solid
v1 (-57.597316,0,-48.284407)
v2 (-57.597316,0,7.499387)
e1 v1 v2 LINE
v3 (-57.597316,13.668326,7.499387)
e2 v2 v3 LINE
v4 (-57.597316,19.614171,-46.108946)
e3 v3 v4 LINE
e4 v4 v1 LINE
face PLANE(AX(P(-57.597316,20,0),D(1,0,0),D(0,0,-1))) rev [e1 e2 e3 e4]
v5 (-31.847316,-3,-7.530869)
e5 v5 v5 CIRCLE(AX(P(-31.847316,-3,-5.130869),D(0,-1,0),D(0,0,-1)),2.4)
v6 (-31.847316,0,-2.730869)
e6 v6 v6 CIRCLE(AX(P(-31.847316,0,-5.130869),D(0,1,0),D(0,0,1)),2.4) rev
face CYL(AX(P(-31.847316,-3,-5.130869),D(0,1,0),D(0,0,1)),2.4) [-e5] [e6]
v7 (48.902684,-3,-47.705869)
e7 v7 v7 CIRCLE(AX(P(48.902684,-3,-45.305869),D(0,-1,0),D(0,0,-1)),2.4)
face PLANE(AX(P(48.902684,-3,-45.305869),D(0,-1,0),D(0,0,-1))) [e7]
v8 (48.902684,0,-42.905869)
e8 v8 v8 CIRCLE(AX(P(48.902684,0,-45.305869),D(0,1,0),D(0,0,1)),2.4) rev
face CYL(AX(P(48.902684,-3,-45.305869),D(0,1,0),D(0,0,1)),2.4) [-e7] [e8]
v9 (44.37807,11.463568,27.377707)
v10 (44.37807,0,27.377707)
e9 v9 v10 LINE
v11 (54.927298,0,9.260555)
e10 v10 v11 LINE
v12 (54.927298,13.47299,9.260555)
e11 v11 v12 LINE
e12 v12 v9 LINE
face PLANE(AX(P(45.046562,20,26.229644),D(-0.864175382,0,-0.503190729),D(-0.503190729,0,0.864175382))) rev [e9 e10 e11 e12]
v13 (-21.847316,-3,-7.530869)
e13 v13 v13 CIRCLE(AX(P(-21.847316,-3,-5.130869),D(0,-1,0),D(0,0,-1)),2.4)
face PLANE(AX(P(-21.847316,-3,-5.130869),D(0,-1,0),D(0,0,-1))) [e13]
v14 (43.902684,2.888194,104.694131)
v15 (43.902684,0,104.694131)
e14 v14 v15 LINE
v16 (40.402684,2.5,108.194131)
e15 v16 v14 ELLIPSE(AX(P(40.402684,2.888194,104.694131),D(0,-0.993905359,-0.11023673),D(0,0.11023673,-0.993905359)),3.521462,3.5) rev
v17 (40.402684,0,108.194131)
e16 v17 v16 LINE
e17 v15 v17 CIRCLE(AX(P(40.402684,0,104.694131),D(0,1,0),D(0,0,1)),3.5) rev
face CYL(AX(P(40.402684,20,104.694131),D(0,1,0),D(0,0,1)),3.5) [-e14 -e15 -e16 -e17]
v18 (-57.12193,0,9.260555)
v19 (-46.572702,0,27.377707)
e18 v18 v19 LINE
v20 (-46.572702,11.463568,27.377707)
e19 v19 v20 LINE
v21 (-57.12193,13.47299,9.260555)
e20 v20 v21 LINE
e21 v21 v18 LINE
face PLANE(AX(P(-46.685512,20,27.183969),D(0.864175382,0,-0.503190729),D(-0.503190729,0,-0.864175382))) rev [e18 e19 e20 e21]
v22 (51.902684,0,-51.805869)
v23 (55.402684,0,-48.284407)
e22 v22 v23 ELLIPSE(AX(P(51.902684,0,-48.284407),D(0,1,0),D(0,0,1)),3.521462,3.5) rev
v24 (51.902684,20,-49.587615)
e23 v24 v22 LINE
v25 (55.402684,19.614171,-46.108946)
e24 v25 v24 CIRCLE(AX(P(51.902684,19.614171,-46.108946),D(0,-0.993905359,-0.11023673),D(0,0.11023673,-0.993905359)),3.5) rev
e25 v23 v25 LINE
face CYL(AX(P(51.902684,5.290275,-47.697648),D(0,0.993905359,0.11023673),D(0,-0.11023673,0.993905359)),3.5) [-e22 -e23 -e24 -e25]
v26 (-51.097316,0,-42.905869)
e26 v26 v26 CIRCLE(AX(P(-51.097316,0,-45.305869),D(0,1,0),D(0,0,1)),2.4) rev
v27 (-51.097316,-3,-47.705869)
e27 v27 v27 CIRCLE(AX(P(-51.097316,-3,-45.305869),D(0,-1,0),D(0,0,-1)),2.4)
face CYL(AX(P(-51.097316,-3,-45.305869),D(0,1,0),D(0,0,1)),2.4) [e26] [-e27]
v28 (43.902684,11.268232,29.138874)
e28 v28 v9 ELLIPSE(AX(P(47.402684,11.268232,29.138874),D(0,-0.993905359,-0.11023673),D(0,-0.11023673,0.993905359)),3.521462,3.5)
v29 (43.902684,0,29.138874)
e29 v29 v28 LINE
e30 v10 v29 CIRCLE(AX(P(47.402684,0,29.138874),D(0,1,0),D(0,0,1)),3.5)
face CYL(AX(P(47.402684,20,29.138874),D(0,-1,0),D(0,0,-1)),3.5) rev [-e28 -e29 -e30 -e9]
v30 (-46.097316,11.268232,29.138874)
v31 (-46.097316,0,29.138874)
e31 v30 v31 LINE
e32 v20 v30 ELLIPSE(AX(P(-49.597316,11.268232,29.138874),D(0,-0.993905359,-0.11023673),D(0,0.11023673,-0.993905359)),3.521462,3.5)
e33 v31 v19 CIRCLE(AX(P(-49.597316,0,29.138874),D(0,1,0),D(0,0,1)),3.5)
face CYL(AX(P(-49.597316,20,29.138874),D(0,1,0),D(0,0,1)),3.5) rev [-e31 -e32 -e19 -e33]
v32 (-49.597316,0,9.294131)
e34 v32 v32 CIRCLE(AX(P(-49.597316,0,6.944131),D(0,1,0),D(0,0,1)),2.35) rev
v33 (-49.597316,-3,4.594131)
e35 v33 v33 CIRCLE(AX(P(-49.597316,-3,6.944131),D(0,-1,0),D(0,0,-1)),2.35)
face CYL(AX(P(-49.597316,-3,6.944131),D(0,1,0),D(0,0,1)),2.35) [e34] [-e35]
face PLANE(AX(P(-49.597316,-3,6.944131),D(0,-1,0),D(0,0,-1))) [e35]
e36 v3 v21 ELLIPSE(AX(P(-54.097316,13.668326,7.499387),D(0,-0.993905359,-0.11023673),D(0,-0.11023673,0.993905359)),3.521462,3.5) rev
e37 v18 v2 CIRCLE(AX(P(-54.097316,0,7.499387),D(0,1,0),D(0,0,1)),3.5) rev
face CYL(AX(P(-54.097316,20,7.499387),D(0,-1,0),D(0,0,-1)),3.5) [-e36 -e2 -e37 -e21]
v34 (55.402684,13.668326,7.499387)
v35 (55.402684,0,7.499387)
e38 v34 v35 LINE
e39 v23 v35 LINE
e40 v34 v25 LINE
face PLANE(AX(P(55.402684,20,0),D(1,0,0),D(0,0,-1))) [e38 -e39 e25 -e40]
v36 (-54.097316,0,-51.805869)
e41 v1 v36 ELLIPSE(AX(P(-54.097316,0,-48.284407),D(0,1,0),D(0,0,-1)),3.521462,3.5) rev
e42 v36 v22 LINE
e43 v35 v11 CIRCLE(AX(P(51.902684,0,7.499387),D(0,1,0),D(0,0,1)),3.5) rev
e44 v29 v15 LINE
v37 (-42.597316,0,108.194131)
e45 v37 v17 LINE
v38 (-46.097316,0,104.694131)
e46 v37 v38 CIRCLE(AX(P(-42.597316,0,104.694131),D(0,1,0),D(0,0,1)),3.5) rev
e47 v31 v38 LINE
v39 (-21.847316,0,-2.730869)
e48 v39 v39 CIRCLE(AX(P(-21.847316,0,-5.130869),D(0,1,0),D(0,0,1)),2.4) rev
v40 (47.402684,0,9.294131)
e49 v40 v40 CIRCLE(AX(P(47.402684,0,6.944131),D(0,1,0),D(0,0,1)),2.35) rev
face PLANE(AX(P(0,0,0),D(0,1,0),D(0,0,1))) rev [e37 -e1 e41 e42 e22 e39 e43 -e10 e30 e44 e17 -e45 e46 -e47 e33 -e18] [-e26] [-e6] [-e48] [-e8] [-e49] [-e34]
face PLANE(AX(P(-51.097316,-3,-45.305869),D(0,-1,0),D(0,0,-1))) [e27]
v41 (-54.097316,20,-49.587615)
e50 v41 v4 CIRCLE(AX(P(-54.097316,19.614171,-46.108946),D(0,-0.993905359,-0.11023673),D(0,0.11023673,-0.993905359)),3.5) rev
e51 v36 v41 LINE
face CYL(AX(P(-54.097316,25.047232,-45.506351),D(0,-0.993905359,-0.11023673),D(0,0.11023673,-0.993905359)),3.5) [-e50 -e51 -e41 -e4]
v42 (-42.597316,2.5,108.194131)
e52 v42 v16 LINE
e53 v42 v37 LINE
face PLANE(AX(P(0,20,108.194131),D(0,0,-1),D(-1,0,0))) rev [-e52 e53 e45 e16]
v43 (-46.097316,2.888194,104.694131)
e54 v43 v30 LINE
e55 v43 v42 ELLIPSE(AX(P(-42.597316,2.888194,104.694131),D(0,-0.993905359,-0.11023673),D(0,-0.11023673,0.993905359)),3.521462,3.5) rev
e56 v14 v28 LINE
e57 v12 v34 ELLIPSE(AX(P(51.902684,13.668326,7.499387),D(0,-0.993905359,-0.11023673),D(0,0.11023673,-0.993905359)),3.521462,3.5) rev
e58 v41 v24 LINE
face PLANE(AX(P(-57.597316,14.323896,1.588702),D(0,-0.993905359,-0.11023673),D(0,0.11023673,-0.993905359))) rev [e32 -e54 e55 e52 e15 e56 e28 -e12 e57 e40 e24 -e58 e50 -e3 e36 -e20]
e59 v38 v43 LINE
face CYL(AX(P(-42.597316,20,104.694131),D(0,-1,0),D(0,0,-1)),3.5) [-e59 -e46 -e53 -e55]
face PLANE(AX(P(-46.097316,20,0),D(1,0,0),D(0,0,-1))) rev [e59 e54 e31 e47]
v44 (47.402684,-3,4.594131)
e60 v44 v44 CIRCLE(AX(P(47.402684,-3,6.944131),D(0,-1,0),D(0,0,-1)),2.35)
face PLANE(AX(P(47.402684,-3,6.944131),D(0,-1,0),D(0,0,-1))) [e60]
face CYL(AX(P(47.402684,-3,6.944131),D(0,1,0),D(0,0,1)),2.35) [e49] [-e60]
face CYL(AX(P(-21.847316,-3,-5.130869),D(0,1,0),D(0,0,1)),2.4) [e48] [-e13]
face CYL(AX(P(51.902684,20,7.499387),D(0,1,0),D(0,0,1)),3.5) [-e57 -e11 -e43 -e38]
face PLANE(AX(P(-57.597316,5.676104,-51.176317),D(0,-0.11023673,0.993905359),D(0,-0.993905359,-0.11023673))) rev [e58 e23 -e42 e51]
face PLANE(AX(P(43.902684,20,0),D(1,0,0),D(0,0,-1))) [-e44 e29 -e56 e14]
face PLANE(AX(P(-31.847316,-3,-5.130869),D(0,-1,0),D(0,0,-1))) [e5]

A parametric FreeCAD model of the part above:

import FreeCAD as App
import Part
import Sketcher
from FreeCAD import Vector


def edges_at(feature, points):
    """Names of the edges that pass closest to the given points."""
    edges = feature.Shape.Edges
    near = lambda p: min(range(len(edges)), key=lambda i: edges[i].distToShape(Part.Vertex(*p))[0])
    return sorted({f"Edge{near(p) + 1}" for p in points})

doc = App.newDocument("Part")
body = doc.addObject("PartDesign::Body", "Body")

# Sketch on XZ plane
sketch1 = body.newObject("Sketcher::SketchObject", "Sketch")
sketch1.AttachmentSupport = (doc.getObject("XZ_Plane"), [""])
sketch1.MapMode = "FlatFace"
sketch1.addGeometry(Part.LineSegment(Vector(-57.597316, -51.805869, 0), Vector(-57.597316, 8.444131, 0)), False)
sketch1.addGeometry(Part.LineSegment(Vector(-57.597316, 8.444131, 0), Vector(-46.097316, 28.194131, 0)), False)
sketch1.addGeometry(Part.LineSegment(Vector(-46.097316, 28.194131, 0), Vector(-46.097316, 108.194131, 0)), False)
sketch1.addGeometry(Part.LineSegment(Vector(-46.097316, 108.194131, 0), Vector(43.902684, 108.194131, 0)), False)
sketch1.addGeometry(Part.LineSegment(Vector(43.902684, 108.194131, 0), Vector(43.902684, 28.194131, 0)), False)
sketch1.addGeometry(Part.LineSegment(Vector(43.902684, 28.194131, 0), Vector(55.402684, 8.444131, 0)), False)
sketch1.addGeometry(Part.LineSegment(Vector(55.402684, 8.444131, 0), Vector(55.402684, -51.805869, 0)), False)
sketch1.addGeometry(Part.LineSegment(Vector(55.402684, -51.805869, 0), Vector(-57.597316, -51.805869, 0)), False)
sketch1.addConstraint(Sketcher.Constraint("Coincident", 0, 2, 1, 1))
sketch1.addConstraint(Sketcher.Constraint("Coincident", 1, 2, 2, 1))
sketch1.addConstraint(Sketcher.Constraint("Coincident", 2, 2, 3, 1))
sketch1.addConstraint(Sketcher.Constraint("Coincident", 3, 2, 4, 1))
sketch1.addConstraint(Sketcher.Constraint("Coincident", 4, 2, 5, 1))
sketch1.addConstraint(Sketcher.Constraint("Coincident", 5, 2, 6, 1))
sketch1.addConstraint(Sketcher.Constraint("Coincident", 6, 2, 7, 1))
sketch1.addConstraint(Sketcher.Constraint("Coincident", 7, 2, 0, 1))
sketch1.addConstraint(Sketcher.Constraint("Vertical", 0))
sketch1.addConstraint(Sketcher.Constraint("Vertical", 2))
sketch1.addConstraint(Sketcher.Constraint("Horizontal", 3))
sketch1.addConstraint(Sketcher.Constraint("Vertical", 4))
sketch1.addConstraint(Sketcher.Constraint("Vertical", 6))
sketch1.addConstraint(Sketcher.Constraint("Horizontal", 7))
sketch1.addConstraint(Sketcher.Constraint("Horizontal", 1, 2, 4, 2))
sketch1.addConstraint(Sketcher.Constraint("Horizontal", 0, 2, 5, 2))
sketch1.addConstraint(Sketcher.Constraint("Equal", 1, 5))
sketch1.addConstraint(Sketcher.Constraint("DistanceX", 3, 1, 3, 2, 90.0))
sketch1.addConstraint(Sketcher.Constraint("DistanceX", 7, 2, 7, 1, 113.0))
sketch1.addConstraint(Sketcher.Constraint("DistanceY", 2, 1, 2, 2, 80.0))
sketch1.addConstraint(Sketcher.Constraint("DistanceY", 6, 2, 4, 2, 80.0))
sketch1.addConstraint(Sketcher.Constraint("DistanceY", 0, 1, 0, 2, 60.25))
sketch1.addConstraint(Sketcher.Constraint("DistanceY", -1, 1, 0, 2, 8.444131))
sketch1.addConstraint(Sketcher.Constraint("DistanceX", 0, 2, -1, 1, 57.597316))
pad1 = body.newObject("PartDesign::Pad", "Pad")
pad1.Profile = sketch1
pad1.Length = 20
pad1.Reversed = True

# Sketch on XZ plane
sketch2 = body.newObject("Sketcher::SketchObject", "Sketch001")
sketch2.AttachmentSupport = (doc.getObject("XZ_Plane"), [""])
sketch2.MapMode = "FlatFace"
sketch2.addGeometry(Part.Circle(Vector(-51.097316, -45.305869, 0), Vector(0, 0, 1), 2.4), False)
sketch2.addGeometry(Part.Circle(Vector(48.902684, -45.305869, 0), Vector(0, 0, 1), 2.4), False)
sketch2.addGeometry(Part.Circle(Vector(-31.847316, -5.130869, 0), Vector(0, 0, 1), 2.4), False)
sketch2.addGeometry(Part.Circle(Vector(-21.847316, -5.130869, 0), Vector(0, 0, 1), 2.4), False)
sketch2.addGeometry(Part.Circle(Vector(47.402684, 6.944131, 0), Vector(0, 0, 1), 2.35), False)
sketch2.addGeometry(Part.Circle(Vector(-49.597316, 6.944131, 0), Vector(0, 0, 1), 2.35), False)
sketch2.addConstraint(Sketcher.Constraint("Equal", 0, 1))
sketch2.addConstraint(Sketcher.Constraint("Equal", 1, 2))
sketch2.addConstraint(Sketcher.Constraint("Equal", 2, 3))
sketch2.addConstraint(Sketcher.Constraint("Equal", 4, 5))
sketch2.addConstraint(Sketcher.Constraint("Horizontal", 0, 3, 1, 3))
sketch2.addConstraint(Sketcher.Constraint("Horizontal", 2, 3, 3, 3))
sketch2.addConstraint(Sketcher.Constraint("Horizontal", 4, 3, 5, 3))
sketch2.addConstraint(Sketcher.Constraint("Diameter", 0, 4.8))
sketch2.addConstraint(Sketcher.Constraint("Diameter", 4, 4.7))
sketch2.addConstraint(Sketcher.Constraint("DistanceX", 0, 3, 1, 3, 100.0))
sketch2.addConstraint(Sketcher.Constraint("DistanceX", 2, 3, 3, 3, 10.0))
sketch2.addConstraint(Sketcher.Constraint("DistanceX", 5, 3, 4, 3, 97.0))
sketch2.addConstraint(Sketcher.Constraint("DistanceX", 4, 3, 1, 3, 1.5))
sketch2.addConstraint(Sketcher.Constraint("DistanceX", 0, 3, 2, 3, 19.25))
sketch2.addConstraint(Sketcher.Constraint("DistanceY", 1, 3, 4, 3, 52.25))
sketch2.addConstraint(Sketcher.Constraint("DistanceY", 0, 3, 2, 3, 40.175))
sketch2.addConstraint(Sketcher.Constraint("DistanceY", 0, 3, -1, 1, 45.305869))
sketch2.addConstraint(Sketcher.Constraint("DistanceX", 0, 3, -1, 1, 51.097316))
pad2 = body.newObject("PartDesign::Pad", "Pad001")
pad2.Profile = sketch2
pad2.Length = 3

# Sketch on YZ plane
sketch3 = body.newObject("Sketcher::SketchObject", "Sketch002")
sketch3.AttachmentSupport = (doc.getObject("YZ_Plane"), [""])
sketch3.MapMode = "FlatFace"
sketch3.AttachmentOffset = App.Placement(Vector(0, 0, 55.402684), App.Rotation())
sketch3.addGeometry(Part.LineSegment(Vector(20, 108.194131, 0), Vector(2.5, 108.194131, 0)), False)
sketch3.addGeometry(Part.LineSegment(Vector(2.5, 108.194131, 0), Vector(13.563542, 8.444131, 0)), False)
sketch3.addGeometry(Part.LineSegment(Vector(13.563542, 8.444131, 0), Vector(20, -49.587615, 0)), False)
sketch3.addGeometry(Part.LineSegment(Vector(20, -49.587615, 0), Vector(20, 108.194131, 0)), False)
sketch3.addGeometry(Part.LineSegment(Vector(20, -49.587615, 0), Vector(0, -51.805869, 0)), False)
sketch3.addGeometry(Part.LineSegment(Vector(0, -51.805869, 0), Vector(20, -51.805869, 0)), False)
sketch3.addGeometry(Part.LineSegment(Vector(20, -51.805869, 0), Vector(20, -49.587615, 0)), False)
sketch3.addConstraint(Sketcher.Constraint("Coincident", 0, 2, 1, 1))
sketch3.addConstraint(Sketcher.Constraint("Coincident", 1, 2, 2, 1))
sketch3.addConstraint(Sketcher.Constraint("Coincident", 2, 2, 3, 1))
sketch3.addConstraint(Sketcher.Constraint("Coincident", 3, 2, 0, 1))
sketch3.addConstraint(Sketcher.Constraint("Coincident", 4, 2, 5, 1))
sketch3.addConstraint(Sketcher.Constraint("Coincident", 5, 2, 6, 1))
sketch3.addConstraint(Sketcher.Constraint("Coincident", 6, 2, 4, 1))
sketch3.addConstraint(Sketcher.Constraint("Horizontal", 0))
sketch3.addConstraint(Sketcher.Constraint("Vertical", 3))
sketch3.addConstraint(Sketcher.Constraint("Horizontal", 5))
sketch3.addConstraint(Sketcher.Constraint("Vertical", 6))
sketch3.addConstraint(Sketcher.Constraint("Coincident", 6, 2, 2, 2))
sketch3.addConstraint(Sketcher.Constraint("PointOnObject", 4, 2, -2))
sketch3.addConstraint(Sketcher.Constraint("Parallel", 1, 2))
sketch3.addConstraint(Sketcher.Constraint("Perpendicular", 2, 4))
sketch3.addConstraint(Sketcher.Constraint("DistanceX", 5, 1, 5, 2, 20.0))
sketch3.addConstraint(Sketcher.Constraint("DistanceX", 0, 2, 0, 1, 17.5))
sketch3.addConstraint(Sketcher.Constraint("DistanceY", 4, 2, 0, 2, 160.0))
sketch3.addConstraint(Sketcher.Constraint("DistanceY", 1, 2, 0, 2, 99.75))
sketch3.addConstraint(Sketcher.Constraint("DistanceY", -1, 1, 0, 2, 108.194131))
pocket1 = body.newObject("PartDesign::Pocket", "Pocket")
pocket1.Profile = sketch3
pocket1.Type = "ThroughAll"
doc.recompute()

fillet = body.newObject("PartDesign::Fillet", "Fillet")
fillet.Base = (pocket1, edges_at(pocket1, [
    (-57.597, 10, -50.697),
    (55.403, 10, -50.697),
    (-46.097, 5.687, 28.194),
    (-57.597, 6.782, 8.444),
    (43.903, 5.687, 28.194),
    (43.903, 1.25, 108.194),
    (-46.097, 1.25, 108.194),
    (55.403, 6.782, 8.444),
]))
fillet.Radius = 3.5

doc.recompute()
